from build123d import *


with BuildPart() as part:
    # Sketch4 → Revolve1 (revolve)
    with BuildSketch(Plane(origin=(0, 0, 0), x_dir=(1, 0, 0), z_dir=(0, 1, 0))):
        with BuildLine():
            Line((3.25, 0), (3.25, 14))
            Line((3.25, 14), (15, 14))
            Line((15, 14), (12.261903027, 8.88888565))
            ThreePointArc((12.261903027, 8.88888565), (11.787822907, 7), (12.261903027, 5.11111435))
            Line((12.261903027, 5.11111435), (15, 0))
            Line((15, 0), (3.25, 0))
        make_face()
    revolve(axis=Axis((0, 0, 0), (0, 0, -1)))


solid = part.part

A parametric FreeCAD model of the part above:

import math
import FreeCAD as App
import Part
import Sketcher
Q = App.Units.Quantity

doc = App.newDocument("Part")
body = doc.addObject("PartDesign::Body", "Body")

sketch1 = doc.addObject("Sketcher::SketchObject", "Sketch")
body.addObject(sketch1)
sketch1.AttachmentSupport = (doc.XZ_Plane, [""])
sketch1.MapMode = "FlatFace"
sketch1.addGeometry(Part.LineSegment(App.Vector(3.25, -14, 0), App.Vector(3.25, 0, 0)), False)
sketch1.addGeometry(Part.LineSegment(App.Vector(3.25, 0, 0), App.Vector(15, 0, 0)), False)
sketch1.addGeometry(Part.LineSegment(App.Vector(15, 0, 0), App.Vector(12.261903, -5.111114, 0)), False)
sketch1.addGeometry(Part.ArcOfCircle(Part.Circle(App.Vector(15.787823, -7, 0), App.Vector(0, 0, 1), 4), math.radians(151.82141), math.radians(208.17859)), False)
sketch1.addGeometry(Part.LineSegment(App.Vector(12.261903, -8.888886, 0), App.Vector(15, -14, 0)), False)
sketch1.addGeometry(Part.LineSegment(App.Vector(15, -14, 0), App.Vector(3.25, -14, 0)), False)
sketch1.addConstraint(Sketcher.Constraint("Coincident", 0, 2, 1, 1))
sketch1.addConstraint(Sketcher.Constraint("Coincident", 1, 2, 2, 1))
sketch1.addConstraint(Sketcher.Constraint("Tangent", 2, 2, 3, 1))
sketch1.addConstraint(Sketcher.Constraint("Tangent", 3, 2, 4, 1))
sketch1.addConstraint(Sketcher.Constraint("Coincident", 4, 2, 5, 1))
sketch1.addConstraint(Sketcher.Constraint("Coincident", 5, 2, 0, 1))
sketch1.addConstraint(Sketcher.Constraint("Vertical", 0))
sketch1.addConstraint(Sketcher.Constraint("Horizontal", 1))
sketch1.addConstraint(Sketcher.Constraint("Horizontal", 5))
sketch1.addConstraint(Sketcher.Constraint("PointOnObject", 0, 2, -1))
sketch1.addConstraint(Sketcher.Constraint("Vertical", 2, 2, 3, 2))
sketch1.addConstraint(Sketcher.Constraint("Vertical", 1, 2, 4, 2))
sketch1.addConstraint(Sketcher.Constraint("Radius", 3, Q("4 mm")))
sketch1.addConstraint(Sketcher.Constraint("DistanceY", 0, 1, 0, 2, Q("14 mm")))
sketch1.addConstraint(Sketcher.Constraint("DistanceX", -1, 1, 1, 2, Q("15 mm")))
sketch1.addConstraint(Sketcher.Constraint("DistanceX", 1, 1, 1, 2, Q("11.75 mm")))
sketch1.addConstraint(Sketcher.Constraint("DistanceX", 2, 2, 3, 3, Q("3.52592 mm")))
revolution = doc.addObject("PartDesign::Revolution", "Revolution")
body.addObject(revolution)
revolution.Profile = sketch1
revolution.ReferenceAxis = (sketch1, ["V_Axis"])
revolution.Angle = 360

doc.recompute()
